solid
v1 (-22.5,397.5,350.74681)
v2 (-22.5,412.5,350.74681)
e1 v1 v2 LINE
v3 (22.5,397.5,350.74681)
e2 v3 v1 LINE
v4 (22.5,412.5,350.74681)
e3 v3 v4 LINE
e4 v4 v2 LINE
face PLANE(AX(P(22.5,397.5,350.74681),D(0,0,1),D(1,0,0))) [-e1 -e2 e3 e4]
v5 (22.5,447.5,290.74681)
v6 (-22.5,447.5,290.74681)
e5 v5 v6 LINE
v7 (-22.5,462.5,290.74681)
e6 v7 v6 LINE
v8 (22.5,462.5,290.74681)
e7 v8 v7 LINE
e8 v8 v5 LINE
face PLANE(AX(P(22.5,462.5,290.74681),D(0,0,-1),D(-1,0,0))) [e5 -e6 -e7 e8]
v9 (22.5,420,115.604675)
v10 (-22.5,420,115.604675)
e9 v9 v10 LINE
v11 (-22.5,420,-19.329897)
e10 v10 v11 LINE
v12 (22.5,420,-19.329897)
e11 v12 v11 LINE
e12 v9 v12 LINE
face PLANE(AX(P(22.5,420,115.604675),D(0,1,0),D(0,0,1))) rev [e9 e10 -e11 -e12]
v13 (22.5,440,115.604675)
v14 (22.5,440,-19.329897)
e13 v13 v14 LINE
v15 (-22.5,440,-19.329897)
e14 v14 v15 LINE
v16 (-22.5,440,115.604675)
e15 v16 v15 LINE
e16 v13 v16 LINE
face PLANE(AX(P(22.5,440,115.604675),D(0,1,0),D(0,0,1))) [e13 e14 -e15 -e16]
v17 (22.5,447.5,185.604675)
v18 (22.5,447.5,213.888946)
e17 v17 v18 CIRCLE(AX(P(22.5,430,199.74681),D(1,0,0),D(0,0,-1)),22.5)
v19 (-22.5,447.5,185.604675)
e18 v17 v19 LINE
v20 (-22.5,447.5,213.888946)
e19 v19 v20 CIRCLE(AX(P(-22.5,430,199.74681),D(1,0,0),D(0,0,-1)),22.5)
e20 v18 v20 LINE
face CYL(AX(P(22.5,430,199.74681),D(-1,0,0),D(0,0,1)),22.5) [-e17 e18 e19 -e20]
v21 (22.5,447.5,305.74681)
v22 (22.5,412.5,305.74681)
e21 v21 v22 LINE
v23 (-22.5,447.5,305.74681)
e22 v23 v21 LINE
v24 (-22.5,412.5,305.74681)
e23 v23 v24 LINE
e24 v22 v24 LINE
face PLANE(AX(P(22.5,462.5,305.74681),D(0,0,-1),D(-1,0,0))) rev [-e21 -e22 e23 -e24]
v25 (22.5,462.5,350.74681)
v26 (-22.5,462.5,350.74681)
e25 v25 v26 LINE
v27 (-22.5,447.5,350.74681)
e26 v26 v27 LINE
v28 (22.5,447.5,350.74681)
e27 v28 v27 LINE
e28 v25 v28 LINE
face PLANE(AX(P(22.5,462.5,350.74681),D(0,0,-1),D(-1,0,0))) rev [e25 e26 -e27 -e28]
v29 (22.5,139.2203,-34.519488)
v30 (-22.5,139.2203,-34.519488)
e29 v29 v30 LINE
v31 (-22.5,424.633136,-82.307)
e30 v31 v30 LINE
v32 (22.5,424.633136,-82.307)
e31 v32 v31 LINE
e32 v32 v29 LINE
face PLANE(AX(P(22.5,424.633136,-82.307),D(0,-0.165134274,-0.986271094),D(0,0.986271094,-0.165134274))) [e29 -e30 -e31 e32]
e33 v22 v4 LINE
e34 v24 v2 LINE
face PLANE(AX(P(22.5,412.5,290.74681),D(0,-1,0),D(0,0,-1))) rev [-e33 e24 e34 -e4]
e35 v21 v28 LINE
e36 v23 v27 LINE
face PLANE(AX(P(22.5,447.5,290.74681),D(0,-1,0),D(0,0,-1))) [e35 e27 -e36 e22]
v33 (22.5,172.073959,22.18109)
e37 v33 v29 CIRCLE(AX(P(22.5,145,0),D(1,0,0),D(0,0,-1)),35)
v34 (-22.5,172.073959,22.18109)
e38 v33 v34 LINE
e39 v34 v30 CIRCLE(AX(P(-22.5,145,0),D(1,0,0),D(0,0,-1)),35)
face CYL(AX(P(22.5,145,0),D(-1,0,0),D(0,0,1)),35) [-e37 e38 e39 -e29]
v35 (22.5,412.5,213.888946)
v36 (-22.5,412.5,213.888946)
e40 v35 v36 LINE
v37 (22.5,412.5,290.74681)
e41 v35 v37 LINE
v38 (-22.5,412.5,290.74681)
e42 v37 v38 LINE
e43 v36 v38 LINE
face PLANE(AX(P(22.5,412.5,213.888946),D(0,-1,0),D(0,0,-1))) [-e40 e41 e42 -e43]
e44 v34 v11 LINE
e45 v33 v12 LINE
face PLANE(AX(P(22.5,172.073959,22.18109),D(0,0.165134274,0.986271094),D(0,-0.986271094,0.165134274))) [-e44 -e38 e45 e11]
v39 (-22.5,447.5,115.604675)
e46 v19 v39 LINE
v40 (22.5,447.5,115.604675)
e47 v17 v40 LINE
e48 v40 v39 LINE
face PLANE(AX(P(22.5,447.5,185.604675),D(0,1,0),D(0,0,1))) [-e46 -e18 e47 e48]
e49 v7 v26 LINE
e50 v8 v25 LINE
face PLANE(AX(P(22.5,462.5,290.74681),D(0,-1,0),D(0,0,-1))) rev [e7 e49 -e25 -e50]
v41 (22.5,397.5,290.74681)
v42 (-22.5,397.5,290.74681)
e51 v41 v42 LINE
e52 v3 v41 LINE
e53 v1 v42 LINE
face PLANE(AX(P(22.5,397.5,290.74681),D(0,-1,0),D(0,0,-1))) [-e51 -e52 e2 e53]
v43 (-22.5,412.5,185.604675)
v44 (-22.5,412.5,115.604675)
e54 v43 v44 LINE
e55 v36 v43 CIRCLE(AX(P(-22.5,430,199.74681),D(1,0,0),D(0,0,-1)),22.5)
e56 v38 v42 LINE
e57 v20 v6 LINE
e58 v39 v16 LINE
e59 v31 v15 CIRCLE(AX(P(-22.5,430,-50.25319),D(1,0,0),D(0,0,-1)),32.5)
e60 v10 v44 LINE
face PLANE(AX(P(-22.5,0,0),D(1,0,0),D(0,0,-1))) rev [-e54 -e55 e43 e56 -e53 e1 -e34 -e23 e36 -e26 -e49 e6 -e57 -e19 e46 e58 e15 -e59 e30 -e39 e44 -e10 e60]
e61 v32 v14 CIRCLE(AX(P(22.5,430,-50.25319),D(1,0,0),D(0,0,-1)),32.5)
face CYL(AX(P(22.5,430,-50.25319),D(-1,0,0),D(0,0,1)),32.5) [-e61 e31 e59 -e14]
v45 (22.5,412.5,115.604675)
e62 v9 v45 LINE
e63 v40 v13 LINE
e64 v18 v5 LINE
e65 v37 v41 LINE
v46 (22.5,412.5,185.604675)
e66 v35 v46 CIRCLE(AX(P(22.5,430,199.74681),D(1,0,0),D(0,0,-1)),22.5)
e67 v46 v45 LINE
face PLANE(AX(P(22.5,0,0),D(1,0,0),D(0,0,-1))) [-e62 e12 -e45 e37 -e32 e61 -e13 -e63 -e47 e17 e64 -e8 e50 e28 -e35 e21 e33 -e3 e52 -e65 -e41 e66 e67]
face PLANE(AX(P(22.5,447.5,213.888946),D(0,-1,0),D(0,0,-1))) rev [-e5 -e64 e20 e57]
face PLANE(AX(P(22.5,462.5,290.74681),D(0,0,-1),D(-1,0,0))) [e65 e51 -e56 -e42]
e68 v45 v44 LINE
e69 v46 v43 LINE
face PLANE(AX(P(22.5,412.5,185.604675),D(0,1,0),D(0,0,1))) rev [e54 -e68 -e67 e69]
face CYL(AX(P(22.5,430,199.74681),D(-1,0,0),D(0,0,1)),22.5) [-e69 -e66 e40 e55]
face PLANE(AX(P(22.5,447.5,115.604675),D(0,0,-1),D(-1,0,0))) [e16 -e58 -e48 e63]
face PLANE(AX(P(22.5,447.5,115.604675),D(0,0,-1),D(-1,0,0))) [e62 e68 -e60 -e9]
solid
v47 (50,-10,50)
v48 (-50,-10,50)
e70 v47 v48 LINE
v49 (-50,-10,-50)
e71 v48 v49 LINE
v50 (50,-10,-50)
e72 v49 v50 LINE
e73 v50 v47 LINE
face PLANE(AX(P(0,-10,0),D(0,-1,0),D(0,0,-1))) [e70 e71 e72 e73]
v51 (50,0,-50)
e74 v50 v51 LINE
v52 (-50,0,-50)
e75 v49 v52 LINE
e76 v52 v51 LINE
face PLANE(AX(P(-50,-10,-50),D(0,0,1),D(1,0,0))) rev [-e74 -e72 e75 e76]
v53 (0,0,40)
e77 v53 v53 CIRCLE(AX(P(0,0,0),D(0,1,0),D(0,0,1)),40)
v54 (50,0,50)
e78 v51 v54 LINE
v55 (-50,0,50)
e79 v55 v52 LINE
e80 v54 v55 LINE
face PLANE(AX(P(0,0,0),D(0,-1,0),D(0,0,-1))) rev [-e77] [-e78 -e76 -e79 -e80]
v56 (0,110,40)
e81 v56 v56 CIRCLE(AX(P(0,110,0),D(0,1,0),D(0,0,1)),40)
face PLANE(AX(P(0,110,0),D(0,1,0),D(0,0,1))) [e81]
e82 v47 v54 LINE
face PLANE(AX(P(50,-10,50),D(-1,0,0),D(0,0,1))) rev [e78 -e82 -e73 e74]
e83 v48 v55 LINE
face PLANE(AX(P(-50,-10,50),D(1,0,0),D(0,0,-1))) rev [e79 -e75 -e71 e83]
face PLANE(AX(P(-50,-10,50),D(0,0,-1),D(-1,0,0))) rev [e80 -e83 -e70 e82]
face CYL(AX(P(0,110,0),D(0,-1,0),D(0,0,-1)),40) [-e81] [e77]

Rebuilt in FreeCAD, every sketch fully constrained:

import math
import FreeCAD as App
import Part
import Sketcher
Q = App.Units.Quantity

doc = App.newDocument("Part")
body = doc.addObject("PartDesign::Body", "Body")

# Sketch on XZ plane
sketch1 = body.newObject("Sketcher::SketchObject", "Sketch")
sketch1.AttachmentSupport = (doc.getObject("XZ_Plane"), [""])
sketch1.MapMode = "FlatFace"
sketch1.addGeometry(Part.Circle(App.Vector(0, 0, 0), App.Vector(0, 0, 1), 40), False)
sketch1.addConstraint([
    Sketcher.Constraint("Coincident", 0, 3, -1, 1),
    Sketcher.Constraint("Diameter", 0, Q("80 mm")),
])
pad1 = body.newObject("PartDesign::Pad", "Pad")
pad1.Profile = sketch1
pad1.Length = 110
pad1.Reversed = True

# Sketch on XZ plane
sketch2 = body.newObject("Sketcher::SketchObject", "Sketch001")
sketch2.AttachmentSupport = (doc.getObject("XZ_Plane"), [""])
sketch2.MapMode = "FlatFace"
sketch2.addGeometry([
    Part.LineSegment(App.Vector(-50, 50, 0), App.Vector(-50, -50, 0)),
    Part.LineSegment(App.Vector(-50, -50, 0), App.Vector(50, -50, 0)),
    Part.LineSegment(App.Vector(50, -50, 0), App.Vector(50, 50, 0)),
    Part.LineSegment(App.Vector(50, 50, 0), App.Vector(-50, 50, 0)),
], False)
sketch2.addConstraint([
    Sketcher.Constraint("Coincident", 0, 2, 1, 1),
    Sketcher.Constraint("Coincident", 1, 2, 2, 1),
    Sketcher.Constraint("Coincident", 2, 2, 3, 1),
    Sketcher.Constraint("Coincident", 3, 2, 0, 1),
    Sketcher.Constraint("Vertical", 0),
    Sketcher.Constraint("Horizontal", 1),
    Sketcher.Constraint("Vertical", 2),
    Sketcher.Constraint("Horizontal", 3),
    Sketcher.Constraint("Symmetric", 0, 2, 2, 2, -1, 1),
    Sketcher.Constraint("Equal", 3, 0),
    Sketcher.Constraint("DistanceX", 1, 1, 1, 2, Q("100 mm")),
])
pad2 = body.newObject("PartDesign::Pad", "Pad001")
pad2.Profile = sketch2
pad2.Length = 10
body2 = doc.addObject("PartDesign::Body", "Body001")

# Sketch on YZ plane
sketch3 = body2.newObject("Sketcher::SketchObject", "Sketch002")
sketch3.AttachmentSupport = (doc.getObject("YZ_Plane001"), [""])
sketch3.MapMode = "FlatFace"
sketch3.addGeometry([
    Part.ArcOfCircle(Part.Circle(App.Vector(145, 0, 0), App.Vector(0, 0, 1), 35), math.radians(39), math.radians(260)),  # 0
    Part.LineSegment(App.Vector(139, -35, 0), App.Vector(425, -82, 0)),  # 1
    Part.ArcOfCircle(Part.Circle(App.Vector(430, -50, 0), App.Vector(0, 0, 1), 32), math.radians(-100), math.radians(72)),  # 2
    Part.LineSegment(App.Vector(440, -19, 0), App.Vector(440, 116, 0)),  # 3
    Part.LineSegment(App.Vector(440, 116, 0), App.Vector(448, 116, 0)),  # 4
    Part.LineSegment(App.Vector(448, 116, 0), App.Vector(448, 186, 0)),  # 5
    Part.ArcOfCircle(Part.Circle(App.Vector(430, 200, 0), App.Vector(0, 0, 1), 23), math.radians(-39), math.radians(39)),  # 6
    Part.LineSegment(App.Vector(448, 214, 0), App.Vector(448, 291, 0)),  # 7
    Part.LineSegment(App.Vector(448, 291, 0), App.Vector(462, 291, 0)),  # 8
    Part.LineSegment(App.Vector(462, 291, 0), App.Vector(462, 351, 0)),  # 9
    Part.LineSegment(App.Vector(462, 351, 0), App.Vector(448, 351, 0)),  # 10
    Part.LineSegment(App.Vector(448, 351, 0), App.Vector(448, 306, 0)),  # 11
    Part.LineSegment(App.Vector(448, 306, 0), App.Vector(412, 306, 0)),  # 12
    Part.LineSegment(App.Vector(412, 306, 0), App.Vector(412, 351, 0)),  # 13
    Part.LineSegment(App.Vector(412, 351, 0), App.Vector(398, 351, 0)),  # 14
    Part.LineSegment(App.Vector(398, 351, 0), App.Vector(398, 291, 0)),  # 15
    Part.LineSegment(App.Vector(398, 291, 0), App.Vector(412, 291, 0)),  # 16
    Part.LineSegment(App.Vector(412, 291, 0), App.Vector(412, 214, 0)),  # 17
    Part.ArcOfCircle(Part.Circle(App.Vector(430, 200, 0), App.Vector(0, 0, 1), 23), math.radians(141), math.radians(219)),  # 18
    Part.LineSegment(App.Vector(412, 186, 0), App.Vector(412, 116, 0)),  # 19
    Part.LineSegment(App.Vector(412, 116, 0), App.Vector(420, 116, 0)),  # 20
    Part.LineSegment(App.Vector(420, 116, 0), App.Vector(420, -19, 0)),  # 21
    Part.LineSegment(App.Vector(420, -19, 0), App.Vector(172, 22, 0)),  # 22
], False)
sketch3.addConstraint([
    Sketcher.Constraint("Tangent", 0, 2, 1, 1),
    Sketcher.Constraint("Tangent", 1, 2, 2, 1),
    Sketcher.Constraint("Coincident", 2, 2, 3, 1),
    Sketcher.Constraint("Coincident", 3, 2, 4, 1),
    Sketcher.Constraint("Coincident", 4, 2, 5, 1),
    Sketcher.Constraint("Coincident", 5, 2, 6, 1),
    Sketcher.Constraint("Coincident", 6, 2, 7, 1),
    Sketcher.Constraint("Coincident", 7, 2, 8, 1),
    Sketcher.Constraint("Coincident", 8, 2, 9, 1),
    Sketcher.Constraint("Coincident", 9, 2, 10, 1),
    Sketcher.Constraint("Coincident", 10, 2, 11, 1),
    Sketcher.Constraint("Coincident", 11, 2, 12, 1),
    Sketcher.Constraint("Coincident", 12, 2, 13, 1),
    Sketcher.Constraint("Coincident", 13, 2, 14, 1),
    Sketcher.Constraint("Coincident", 14, 2, 15, 1),
    Sketcher.Constraint("Coincident", 15, 2, 16, 1),
    Sketcher.Constraint("Coincident", 16, 2, 17, 1),
    Sketcher.Constraint("Coincident", 17, 2, 18, 1),
    Sketcher.Constraint("Coincident", 18, 2, 19, 1),
    Sketcher.Constraint("Coincident", 19, 2, 20, 1),
    Sketcher.Constraint("Coincident", 20, 2, 21, 1),
    Sketcher.Constraint("Coincident", 21, 2, 22, 1),
    Sketcher.Constraint("Coincident", 22, 2, 0, 1),
    Sketcher.Constraint("Vertical", 3),
    Sketcher.Constraint("Horizontal", 4),
    Sketcher.Constraint("Vertical", 5),
    Sketcher.Constraint("Vertical", 7),
    Sketcher.Constraint("Horizontal", 8),
    Sketcher.Constraint("Vertical", 9),
    Sketcher.Constraint("Horizontal", 10),
    Sketcher.Constraint("Vertical", 11),
    Sketcher.Constraint("Horizontal", 12),
    Sketcher.Constraint("Vertical", 13),
    Sketcher.Constraint("Horizontal", 14),
    Sketcher.Constraint("Vertical", 15),
    Sketcher.Constraint("Horizontal", 16),
    Sketcher.Constraint("Vertical", 17),
    Sketcher.Constraint("Vertical", 19),
    Sketcher.Constraint("Horizontal", 20),
    Sketcher.Constraint("Vertical", 21),
    Sketcher.Constraint("Coincident", 18, 3, 6, 3),
    Sketcher.Constraint("Equal", 6, 18),
    Sketcher.Constraint("PointOnObject", 0, 3, -1),
    Sketcher.Constraint("Parallel", 1, 22),
    Sketcher.Constraint("Horizontal", 10, 2, 13, 2),
    Sketcher.Constraint("Horizontal", 8, 2, 15, 2),
    Sketcher.Constraint("Horizontal", 6, 2, 17, 2),
    Sketcher.Constraint("Horizontal", 5, 2, 18, 2),
    Sketcher.Constraint("Horizontal", 4, 2, 19, 2),
    Sketcher.Constraint("Horizontal", 2, 2, 21, 2),
    Sketcher.Constraint("Vertical", 2, 3, 6, 3),
    Sketcher.Constraint("Vertical", 5, 2, 6, 2),
    Sketcher.Constraint("Vertical", 7, 2, 10, 2),
    Sketcher.Constraint("Vertical", 13, 2, 16, 2),
    Sketcher.Constraint("Equal", 10, 14),
    Sketcher.Constraint("Equal", 4, 20),
    Sketcher.Constraint("Radius", 0, Q("35 mm")),
    Sketcher.Constraint("Radius", 2, Q("32.5 mm")),
    Sketcher.Constraint("Radius", 6, Q("22.5 mm")),
    Sketcher.Constraint("DistanceX", 8, 1, 8, 2, Q("15 mm")),
    Sketcher.Constraint("DistanceX", 12, 2, 12, 1, Q("35 mm")),
    Sketcher.Constraint("DistanceY", 5, 1, 5, 2, Q("70 mm")),
    Sketcher.Constraint("DistanceY", 9, 1, 9, 2, Q("60 mm")),
    Sketcher.Constraint("DistanceY", 11, 2, 11, 1, Q("45 mm")),
    Sketcher.Constraint("DistanceX", 4, 1, 4, 2, Q("7.5 mm")),
    Sketcher.Constraint("DistanceX", -1, 1, 0, 3, Q("145 mm")),
    Sketcher.Constraint("DistanceX", -1, 1, 2, 3, Q("430 mm")),
    Sketcher.Constraint("DistanceY", 2, 3, 6, 3, Q("250 mm")),
    Sketcher.Constraint("DistanceY", 18, 3, 7, 2, Q("91 mm")),
    Sketcher.Constraint("DistanceY", 1, 2, -1, 1, Q("82.307 mm")),
])
pad3 = body2.newObject("PartDesign::Pad", "Pad002")
pad3.Profile = sketch3
pad3.Length = 45
pad3.Midplane = True

doc.recompute()
